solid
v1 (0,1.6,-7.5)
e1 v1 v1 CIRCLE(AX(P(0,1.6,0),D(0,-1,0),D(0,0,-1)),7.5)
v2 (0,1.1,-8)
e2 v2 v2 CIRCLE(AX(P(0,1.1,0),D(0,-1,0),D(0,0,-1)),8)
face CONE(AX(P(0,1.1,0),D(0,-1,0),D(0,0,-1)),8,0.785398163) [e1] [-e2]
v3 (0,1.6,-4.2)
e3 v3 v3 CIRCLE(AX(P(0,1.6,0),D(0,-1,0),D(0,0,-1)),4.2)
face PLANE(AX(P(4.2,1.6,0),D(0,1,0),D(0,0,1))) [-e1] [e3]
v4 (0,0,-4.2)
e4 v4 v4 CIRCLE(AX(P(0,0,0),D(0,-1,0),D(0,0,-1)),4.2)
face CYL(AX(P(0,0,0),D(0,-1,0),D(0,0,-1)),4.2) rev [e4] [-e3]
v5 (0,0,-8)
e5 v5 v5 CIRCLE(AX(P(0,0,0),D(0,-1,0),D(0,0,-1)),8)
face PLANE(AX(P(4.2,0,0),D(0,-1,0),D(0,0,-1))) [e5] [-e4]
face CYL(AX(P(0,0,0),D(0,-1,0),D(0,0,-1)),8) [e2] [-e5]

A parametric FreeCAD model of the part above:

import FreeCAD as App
import Part
import Sketcher
Q = App.Units.Quantity

doc = App.newDocument("Part")
params = doc.addObject("Spreadsheet::Sheet", "Params")
for row, (alias, value) in enumerate([
    ("sketch1_width", "3.8 mm"),
    ("sketch1_width2", "3.3 mm"),
    ("sketch1_height", "1.1 mm"),
    ("revolution_angle", "360 deg"),
], start=1):
    params.set(f"A{row}", alias)
    params.set(f"B{row}", "=" + value)
    params.setAlias(f"B{row}", alias)

body = doc.addObject("PartDesign::Body", "Body")

# Sketch on XY plane
sketch1 = body.newObject("Sketcher::SketchObject", "Sketch")
sketch1.AttachmentSupport = (doc.getObject("XY_Plane"), [""])
sketch1.MapMode = "FlatFace"
sketch1.addGeometry([
    Part.LineSegment(App.Vector(4.2, 0, 0), App.Vector(8, 0, 0)),  # 0
    Part.LineSegment(App.Vector(8, 0, 0), App.Vector(8, 1.1, 0)),  # 1
    Part.LineSegment(App.Vector(8, 1.1, 0), App.Vector(7.5, 1.6, 0)),  # 2
    Part.LineSegment(App.Vector(7.5, 1.6, 0), App.Vector(4.2, 1.6, 0)),  # 3
    Part.LineSegment(App.Vector(4.2, 1.6, 0), App.Vector(4.2, 0, 0)),  # 4
], False)
sketch1.addConstraint([
    Sketcher.Constraint("Coincident", 0, 2, 1, 1),
    Sketcher.Constraint("Coincident", 1, 2, 2, 1),
    Sketcher.Constraint("Coincident", 2, 2, 3, 1),
    Sketcher.Constraint("Coincident", 3, 2, 4, 1),
    Sketcher.Constraint("Coincident", 4, 2, 0, 1),
    Sketcher.Constraint("Horizontal", 0),
    Sketcher.Constraint("Vertical", 1),
    Sketcher.Constraint("Horizontal", 3),
    Sketcher.Constraint("Vertical", 4),
    Sketcher.Constraint("PointOnObject", 0, 2, -1),
    Sketcher.Constraint("Angle", 2, Q("135 deg")),
    Sketcher.Constraint("DistanceX", 0, 1, 0, 2, Q("3.8 mm")),
    Sketcher.Constraint("DistanceX", 3, 2, 3, 1, Q("3.3 mm")),
    Sketcher.Constraint("DistanceY", 1, 1, 1, 2, Q("1.1 mm")),
    Sketcher.Constraint("DistanceX", -1, 1, 0, 2, Q("8 mm")),
])
sketch1.setExpression("Constraints[11]", "Params.sketch1_width")
sketch1.setExpression("Constraints[12]", "Params.sketch1_width2")
sketch1.setExpression("Constraints[13]", "Params.sketch1_height")
revolution = body.newObject("PartDesign::Revolution", "Revolution")
revolution.Profile = sketch1
revolution.ReferenceAxis = (sketch1, ["V_Axis"])
revolution.setExpression("Angle", "Params.revolution_angle")

doc.recompute()
